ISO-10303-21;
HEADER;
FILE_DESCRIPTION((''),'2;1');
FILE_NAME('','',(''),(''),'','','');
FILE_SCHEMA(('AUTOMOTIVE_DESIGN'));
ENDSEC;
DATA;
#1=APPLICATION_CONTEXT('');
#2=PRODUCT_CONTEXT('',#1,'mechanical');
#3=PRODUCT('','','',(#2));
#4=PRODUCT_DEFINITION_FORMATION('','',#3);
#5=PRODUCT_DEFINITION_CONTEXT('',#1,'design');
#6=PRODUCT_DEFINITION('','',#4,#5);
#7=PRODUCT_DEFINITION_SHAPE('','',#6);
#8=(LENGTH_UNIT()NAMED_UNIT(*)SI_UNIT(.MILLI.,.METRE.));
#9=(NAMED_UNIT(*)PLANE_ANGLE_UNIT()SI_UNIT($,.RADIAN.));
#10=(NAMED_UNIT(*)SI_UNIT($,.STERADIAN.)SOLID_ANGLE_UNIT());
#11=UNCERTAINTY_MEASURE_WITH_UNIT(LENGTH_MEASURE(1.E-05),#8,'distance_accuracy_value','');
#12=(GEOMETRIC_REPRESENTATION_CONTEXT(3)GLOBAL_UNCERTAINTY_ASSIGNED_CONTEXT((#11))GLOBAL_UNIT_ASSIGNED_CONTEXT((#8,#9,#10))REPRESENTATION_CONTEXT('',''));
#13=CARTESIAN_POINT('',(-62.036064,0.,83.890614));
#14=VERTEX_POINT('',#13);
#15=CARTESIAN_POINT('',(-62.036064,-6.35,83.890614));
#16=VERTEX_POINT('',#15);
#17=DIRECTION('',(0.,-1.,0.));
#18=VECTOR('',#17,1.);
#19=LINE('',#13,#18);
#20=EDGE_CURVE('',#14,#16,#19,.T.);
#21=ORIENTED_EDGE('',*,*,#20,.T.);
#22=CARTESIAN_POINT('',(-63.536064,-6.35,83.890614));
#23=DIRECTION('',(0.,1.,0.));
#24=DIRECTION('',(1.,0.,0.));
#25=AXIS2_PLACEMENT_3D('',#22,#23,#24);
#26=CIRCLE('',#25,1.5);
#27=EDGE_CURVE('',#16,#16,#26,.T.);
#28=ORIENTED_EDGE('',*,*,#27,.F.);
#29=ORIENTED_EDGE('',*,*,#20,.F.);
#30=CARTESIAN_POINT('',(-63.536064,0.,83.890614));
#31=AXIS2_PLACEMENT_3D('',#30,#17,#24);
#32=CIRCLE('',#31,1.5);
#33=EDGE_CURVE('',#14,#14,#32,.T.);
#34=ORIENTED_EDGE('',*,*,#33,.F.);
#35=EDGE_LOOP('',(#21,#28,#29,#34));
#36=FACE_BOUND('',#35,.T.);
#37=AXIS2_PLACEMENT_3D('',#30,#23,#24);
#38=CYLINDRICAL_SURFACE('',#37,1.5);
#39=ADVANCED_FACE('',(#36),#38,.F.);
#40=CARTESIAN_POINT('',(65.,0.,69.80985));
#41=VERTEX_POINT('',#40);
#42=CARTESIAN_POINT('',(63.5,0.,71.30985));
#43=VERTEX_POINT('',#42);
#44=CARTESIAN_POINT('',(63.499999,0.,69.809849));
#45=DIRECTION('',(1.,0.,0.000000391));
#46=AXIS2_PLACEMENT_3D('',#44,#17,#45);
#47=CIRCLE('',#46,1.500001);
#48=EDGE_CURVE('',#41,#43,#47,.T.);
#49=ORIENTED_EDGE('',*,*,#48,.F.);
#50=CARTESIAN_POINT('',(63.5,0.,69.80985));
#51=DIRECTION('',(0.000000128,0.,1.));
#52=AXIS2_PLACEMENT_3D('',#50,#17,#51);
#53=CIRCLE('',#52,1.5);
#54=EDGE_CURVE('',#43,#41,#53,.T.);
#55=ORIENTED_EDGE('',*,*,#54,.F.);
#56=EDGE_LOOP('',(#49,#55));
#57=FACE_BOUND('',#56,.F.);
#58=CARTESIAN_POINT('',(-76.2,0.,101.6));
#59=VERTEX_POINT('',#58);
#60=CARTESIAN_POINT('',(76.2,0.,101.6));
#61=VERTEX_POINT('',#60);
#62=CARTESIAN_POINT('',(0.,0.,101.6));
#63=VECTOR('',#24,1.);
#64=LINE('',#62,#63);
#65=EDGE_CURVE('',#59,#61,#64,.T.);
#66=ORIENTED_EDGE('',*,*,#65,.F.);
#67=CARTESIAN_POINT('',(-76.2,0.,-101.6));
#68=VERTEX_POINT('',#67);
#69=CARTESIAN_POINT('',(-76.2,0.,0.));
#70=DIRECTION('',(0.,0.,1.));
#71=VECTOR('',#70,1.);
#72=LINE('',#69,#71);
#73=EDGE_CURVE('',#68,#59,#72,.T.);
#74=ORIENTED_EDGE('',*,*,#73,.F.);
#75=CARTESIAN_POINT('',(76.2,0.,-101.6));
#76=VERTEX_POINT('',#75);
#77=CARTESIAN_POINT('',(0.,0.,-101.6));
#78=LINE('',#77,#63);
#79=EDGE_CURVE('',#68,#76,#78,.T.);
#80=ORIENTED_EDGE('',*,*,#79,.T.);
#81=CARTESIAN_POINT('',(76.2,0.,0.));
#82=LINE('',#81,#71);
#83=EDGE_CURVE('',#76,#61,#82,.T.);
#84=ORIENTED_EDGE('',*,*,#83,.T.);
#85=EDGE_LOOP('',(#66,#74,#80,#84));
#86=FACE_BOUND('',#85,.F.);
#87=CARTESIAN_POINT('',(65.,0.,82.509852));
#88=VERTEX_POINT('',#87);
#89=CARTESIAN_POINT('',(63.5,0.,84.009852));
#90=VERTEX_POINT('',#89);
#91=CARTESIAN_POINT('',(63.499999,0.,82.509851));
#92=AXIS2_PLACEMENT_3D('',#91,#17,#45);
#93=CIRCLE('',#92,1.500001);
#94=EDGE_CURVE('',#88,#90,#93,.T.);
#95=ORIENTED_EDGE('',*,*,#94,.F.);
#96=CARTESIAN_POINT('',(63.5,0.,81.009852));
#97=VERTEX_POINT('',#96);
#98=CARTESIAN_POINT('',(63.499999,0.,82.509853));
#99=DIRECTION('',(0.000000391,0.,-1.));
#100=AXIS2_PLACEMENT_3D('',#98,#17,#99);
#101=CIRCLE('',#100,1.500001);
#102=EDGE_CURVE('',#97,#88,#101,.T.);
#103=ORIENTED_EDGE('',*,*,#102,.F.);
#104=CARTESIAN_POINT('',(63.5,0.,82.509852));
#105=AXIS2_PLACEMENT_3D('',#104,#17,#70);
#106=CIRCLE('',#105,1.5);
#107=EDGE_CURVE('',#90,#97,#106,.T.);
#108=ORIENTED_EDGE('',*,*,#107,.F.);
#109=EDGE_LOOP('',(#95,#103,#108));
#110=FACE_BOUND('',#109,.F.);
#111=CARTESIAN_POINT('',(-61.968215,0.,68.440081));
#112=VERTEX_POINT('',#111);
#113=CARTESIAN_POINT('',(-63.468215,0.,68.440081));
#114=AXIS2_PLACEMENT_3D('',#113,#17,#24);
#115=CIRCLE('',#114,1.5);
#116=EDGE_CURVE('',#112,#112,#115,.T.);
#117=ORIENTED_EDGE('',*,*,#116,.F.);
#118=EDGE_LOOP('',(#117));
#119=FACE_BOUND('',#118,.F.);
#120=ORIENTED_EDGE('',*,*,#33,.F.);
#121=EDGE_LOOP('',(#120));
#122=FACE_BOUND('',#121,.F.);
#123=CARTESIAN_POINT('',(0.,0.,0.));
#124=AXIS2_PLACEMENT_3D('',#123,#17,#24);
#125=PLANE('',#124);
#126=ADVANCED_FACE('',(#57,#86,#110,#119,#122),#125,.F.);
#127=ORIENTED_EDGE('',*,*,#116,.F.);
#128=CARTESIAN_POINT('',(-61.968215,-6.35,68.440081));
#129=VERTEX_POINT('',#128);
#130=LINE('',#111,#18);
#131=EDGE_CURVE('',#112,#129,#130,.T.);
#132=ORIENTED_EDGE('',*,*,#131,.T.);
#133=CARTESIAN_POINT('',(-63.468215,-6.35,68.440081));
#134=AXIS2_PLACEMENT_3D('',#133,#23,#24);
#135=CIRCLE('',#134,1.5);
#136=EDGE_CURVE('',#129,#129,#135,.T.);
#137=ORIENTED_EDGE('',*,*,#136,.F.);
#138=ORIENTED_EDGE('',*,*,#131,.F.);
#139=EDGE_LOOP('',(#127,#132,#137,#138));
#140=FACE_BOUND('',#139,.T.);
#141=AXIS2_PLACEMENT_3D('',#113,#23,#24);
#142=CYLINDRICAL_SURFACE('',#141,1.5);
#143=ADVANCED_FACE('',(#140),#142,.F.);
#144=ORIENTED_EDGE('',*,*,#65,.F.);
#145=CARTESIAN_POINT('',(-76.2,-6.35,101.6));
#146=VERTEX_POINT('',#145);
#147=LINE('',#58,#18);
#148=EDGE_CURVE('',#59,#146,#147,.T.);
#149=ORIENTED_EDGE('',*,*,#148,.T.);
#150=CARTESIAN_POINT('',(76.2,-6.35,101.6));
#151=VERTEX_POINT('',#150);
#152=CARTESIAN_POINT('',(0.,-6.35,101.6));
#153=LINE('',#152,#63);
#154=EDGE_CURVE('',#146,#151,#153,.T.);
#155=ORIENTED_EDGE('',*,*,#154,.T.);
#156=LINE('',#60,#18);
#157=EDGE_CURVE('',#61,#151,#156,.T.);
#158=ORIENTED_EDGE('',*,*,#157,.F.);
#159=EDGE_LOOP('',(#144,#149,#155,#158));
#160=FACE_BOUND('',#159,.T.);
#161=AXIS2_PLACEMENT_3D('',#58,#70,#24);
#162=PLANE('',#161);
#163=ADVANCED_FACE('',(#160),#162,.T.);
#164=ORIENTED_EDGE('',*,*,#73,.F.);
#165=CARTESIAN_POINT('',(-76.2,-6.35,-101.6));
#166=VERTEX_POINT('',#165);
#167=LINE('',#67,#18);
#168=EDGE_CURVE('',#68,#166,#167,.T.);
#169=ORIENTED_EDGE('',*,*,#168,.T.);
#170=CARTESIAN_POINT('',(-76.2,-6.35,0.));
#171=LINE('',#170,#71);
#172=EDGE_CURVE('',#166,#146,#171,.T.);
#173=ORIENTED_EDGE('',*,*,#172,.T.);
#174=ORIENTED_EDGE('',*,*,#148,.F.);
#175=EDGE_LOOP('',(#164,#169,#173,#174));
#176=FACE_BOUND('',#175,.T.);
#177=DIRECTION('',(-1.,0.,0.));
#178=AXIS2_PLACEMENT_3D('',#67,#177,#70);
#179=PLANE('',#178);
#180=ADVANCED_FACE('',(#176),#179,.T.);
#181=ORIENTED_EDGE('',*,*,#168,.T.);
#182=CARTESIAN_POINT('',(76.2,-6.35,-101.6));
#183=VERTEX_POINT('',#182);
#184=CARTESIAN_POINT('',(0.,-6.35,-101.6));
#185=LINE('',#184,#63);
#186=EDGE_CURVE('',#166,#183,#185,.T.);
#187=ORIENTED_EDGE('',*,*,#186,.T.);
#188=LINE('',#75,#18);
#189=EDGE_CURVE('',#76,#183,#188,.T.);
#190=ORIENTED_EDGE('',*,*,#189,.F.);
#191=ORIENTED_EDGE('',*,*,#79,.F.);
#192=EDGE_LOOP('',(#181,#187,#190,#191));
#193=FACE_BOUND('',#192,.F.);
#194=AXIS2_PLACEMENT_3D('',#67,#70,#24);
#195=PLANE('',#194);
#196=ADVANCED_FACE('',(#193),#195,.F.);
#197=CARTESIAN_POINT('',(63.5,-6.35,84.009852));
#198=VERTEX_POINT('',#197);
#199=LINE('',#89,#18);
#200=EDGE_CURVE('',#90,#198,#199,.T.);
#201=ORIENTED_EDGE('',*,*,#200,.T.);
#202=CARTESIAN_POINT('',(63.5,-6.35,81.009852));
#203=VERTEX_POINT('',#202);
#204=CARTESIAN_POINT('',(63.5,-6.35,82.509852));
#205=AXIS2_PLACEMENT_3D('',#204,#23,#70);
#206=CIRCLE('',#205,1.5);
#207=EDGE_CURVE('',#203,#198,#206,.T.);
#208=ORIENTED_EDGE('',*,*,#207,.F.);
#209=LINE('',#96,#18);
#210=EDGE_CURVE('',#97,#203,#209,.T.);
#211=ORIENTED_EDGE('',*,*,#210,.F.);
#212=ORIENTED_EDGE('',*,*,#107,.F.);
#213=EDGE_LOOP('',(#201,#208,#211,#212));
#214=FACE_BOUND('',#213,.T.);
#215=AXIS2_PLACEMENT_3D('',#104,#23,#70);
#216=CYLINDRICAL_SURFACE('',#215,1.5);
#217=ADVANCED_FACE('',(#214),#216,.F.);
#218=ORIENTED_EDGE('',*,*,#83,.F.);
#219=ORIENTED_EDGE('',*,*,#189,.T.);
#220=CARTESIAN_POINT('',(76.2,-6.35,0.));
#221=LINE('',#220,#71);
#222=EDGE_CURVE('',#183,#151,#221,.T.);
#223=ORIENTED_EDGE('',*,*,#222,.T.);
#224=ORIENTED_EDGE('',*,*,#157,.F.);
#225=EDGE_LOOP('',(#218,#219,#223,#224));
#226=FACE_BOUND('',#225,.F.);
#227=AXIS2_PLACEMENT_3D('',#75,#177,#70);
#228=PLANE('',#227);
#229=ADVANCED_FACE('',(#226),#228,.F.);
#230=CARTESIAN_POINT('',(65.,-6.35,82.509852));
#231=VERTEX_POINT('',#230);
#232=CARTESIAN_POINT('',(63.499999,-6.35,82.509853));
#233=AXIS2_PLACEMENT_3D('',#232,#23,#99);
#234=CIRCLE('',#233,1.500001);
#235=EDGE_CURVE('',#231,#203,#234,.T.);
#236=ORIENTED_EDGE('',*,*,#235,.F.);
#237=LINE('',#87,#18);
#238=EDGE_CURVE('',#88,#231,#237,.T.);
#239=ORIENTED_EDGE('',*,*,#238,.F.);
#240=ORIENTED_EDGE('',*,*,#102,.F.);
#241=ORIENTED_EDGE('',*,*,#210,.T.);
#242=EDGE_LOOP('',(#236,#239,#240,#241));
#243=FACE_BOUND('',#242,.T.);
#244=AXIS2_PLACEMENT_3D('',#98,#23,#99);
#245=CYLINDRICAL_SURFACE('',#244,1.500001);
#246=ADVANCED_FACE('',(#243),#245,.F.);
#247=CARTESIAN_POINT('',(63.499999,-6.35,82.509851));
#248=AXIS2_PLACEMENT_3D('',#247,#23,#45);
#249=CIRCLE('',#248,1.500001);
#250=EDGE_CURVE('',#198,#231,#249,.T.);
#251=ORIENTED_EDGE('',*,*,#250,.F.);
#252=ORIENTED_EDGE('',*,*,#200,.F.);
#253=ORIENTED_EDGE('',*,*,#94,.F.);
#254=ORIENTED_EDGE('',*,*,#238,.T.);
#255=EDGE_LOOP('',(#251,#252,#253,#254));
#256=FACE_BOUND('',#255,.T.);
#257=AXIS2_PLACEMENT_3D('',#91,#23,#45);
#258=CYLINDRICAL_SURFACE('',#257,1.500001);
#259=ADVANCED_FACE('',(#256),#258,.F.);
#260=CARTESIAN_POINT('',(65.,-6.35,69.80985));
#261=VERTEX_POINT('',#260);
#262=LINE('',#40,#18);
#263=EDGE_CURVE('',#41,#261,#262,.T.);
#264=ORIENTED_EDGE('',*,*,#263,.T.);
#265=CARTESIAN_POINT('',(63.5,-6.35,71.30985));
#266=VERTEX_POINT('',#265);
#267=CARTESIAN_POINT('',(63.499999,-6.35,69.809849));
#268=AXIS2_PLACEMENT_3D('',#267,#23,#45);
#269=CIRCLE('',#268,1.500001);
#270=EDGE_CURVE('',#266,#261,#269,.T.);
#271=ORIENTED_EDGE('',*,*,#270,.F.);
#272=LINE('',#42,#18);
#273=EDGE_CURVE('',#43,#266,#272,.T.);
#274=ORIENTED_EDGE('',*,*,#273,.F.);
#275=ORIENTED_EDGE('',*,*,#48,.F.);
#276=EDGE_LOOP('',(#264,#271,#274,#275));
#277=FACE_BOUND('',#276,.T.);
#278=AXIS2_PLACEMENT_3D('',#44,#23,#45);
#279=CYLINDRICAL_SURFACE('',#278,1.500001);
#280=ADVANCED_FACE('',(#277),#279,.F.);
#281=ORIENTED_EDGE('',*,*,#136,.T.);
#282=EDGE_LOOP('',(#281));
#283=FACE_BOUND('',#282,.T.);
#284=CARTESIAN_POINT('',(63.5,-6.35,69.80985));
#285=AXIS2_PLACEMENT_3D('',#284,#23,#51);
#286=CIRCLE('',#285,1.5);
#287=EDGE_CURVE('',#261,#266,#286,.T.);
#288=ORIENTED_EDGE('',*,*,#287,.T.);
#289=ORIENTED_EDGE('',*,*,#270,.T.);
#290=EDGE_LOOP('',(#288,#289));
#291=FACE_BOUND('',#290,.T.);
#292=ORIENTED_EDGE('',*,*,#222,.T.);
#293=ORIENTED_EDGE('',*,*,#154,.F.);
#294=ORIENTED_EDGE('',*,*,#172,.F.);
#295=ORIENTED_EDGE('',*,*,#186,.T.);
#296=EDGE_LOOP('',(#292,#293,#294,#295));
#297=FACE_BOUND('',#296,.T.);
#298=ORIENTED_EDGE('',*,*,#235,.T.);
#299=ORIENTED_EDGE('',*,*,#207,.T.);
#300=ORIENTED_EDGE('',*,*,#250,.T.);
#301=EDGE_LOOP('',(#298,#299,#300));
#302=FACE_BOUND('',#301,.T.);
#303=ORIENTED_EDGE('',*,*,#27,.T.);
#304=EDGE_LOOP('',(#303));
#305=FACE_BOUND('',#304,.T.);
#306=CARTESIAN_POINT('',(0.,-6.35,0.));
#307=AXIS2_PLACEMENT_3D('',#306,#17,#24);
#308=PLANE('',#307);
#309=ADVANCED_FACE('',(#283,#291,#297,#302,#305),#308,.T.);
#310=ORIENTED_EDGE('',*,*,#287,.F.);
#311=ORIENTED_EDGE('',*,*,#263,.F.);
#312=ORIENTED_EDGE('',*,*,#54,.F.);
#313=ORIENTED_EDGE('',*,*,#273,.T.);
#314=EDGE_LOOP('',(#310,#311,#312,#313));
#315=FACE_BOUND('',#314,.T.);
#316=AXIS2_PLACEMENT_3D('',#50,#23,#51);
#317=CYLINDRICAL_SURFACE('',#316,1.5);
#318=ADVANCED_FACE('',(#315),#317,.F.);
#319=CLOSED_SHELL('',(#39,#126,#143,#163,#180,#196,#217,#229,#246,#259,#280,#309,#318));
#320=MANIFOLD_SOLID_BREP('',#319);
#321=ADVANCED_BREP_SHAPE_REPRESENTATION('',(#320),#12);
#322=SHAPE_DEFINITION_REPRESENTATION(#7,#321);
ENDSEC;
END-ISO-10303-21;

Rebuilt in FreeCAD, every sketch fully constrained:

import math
import FreeCAD as App
import Part
import Sketcher
from FreeCAD import Vector
Q = App.Units.Quantity

doc = App.newDocument("Part")
body = doc.addObject("PartDesign::Body", "Body")

# Sketch on XZ plane
sketch1 = body.newObject("Sketcher::SketchObject", "Sketch")
sketch1.AttachmentSupport = (doc.getObject("XZ_Plane"), [""])
sketch1.MapMode = "FlatFace"
sketch1.addGeometry([
    Part.LineSegment(Vector(-76, 102, 0), Vector(-76, -102, 0)),
    Part.LineSegment(Vector(-76, -102, 0), Vector(76, -102, 0)),
    Part.LineSegment(Vector(76, -102, 0), Vector(76, 102, 0)),
    Part.LineSegment(Vector(76, 102, 0), Vector(-76, 102, 0)),
], False)
sketch1.addConstraint([
    Sketcher.Constraint("Coincident", 0, 2, 1, 1),
    Sketcher.Constraint("Coincident", 1, 2, 2, 1),
    Sketcher.Constraint("Coincident", 2, 2, 3, 1),
    Sketcher.Constraint("Coincident", 3, 2, 0, 1),
    Sketcher.Constraint("Vertical", 0),
    Sketcher.Constraint("Horizontal", 1),
    Sketcher.Constraint("Vertical", 2),
    Sketcher.Constraint("Horizontal", 3),
    Sketcher.Constraint("Symmetric", 0, 2, 2, 2, -1, 1),
    Sketcher.Constraint("DistanceX", 1, 1, 1, 2, Q("6 in")),
    Sketcher.Constraint("DistanceY", 0, 2, 0, 1, Q("8 in")),
])
pad1 = body.newObject("PartDesign::Pad", "Pad")
pad1.Profile = sketch1
pad1.Length = Q("0.25 in")

# Sketch on XZ plane
sketch2 = body.newObject("Sketcher::SketchObject", "Sketch001")
sketch2.AttachmentSupport = (doc.getObject("XZ_Plane"), [""])
sketch2.MapMode = "FlatFace"
sketch2.addGeometry([
    Part.Circle(Vector(-63.5, 83.9, 0), Vector(0, 0, 1), 1.5),
    Part.Circle(Vector(-63.5, 68.4, 0), Vector(0, 0, 1), 1.5),
], False)
sketch2.addConstraint([
    Sketcher.Constraint("Equal", 0, 1),
    Sketcher.Constraint("Diameter", 0, Q("3 mm")),
    Sketcher.Constraint("DistanceY", -1, 1, 1, 3, Q("68.440081 mm")),
    Sketcher.Constraint("DistanceX", 0, 3, 1, 3, Q("0.067849 mm")),
    Sketcher.Constraint("DistanceX", 0, 3, -1, 1, Q("63.536064 mm")),
    Sketcher.Constraint("DistanceY", -1, 1, 0, 3, Q("83.890614 mm")),
])
pocket1 = body.newObject("PartDesign::Pocket", "Pocket")
pocket1.Profile = sketch2
pocket1.Length = Q("0.567 in")
pocket1.Reversed = True

# Sketch on XZ plane
sketch3 = body.newObject("Sketcher::SketchObject", "Sketch002")
sketch3.AttachmentSupport = (doc.getObject("XZ_Plane"), [""])
sketch3.MapMode = "FlatFace"
sketch3.addGeometry([
    Part.ArcOfCircle(Part.Circle(Vector(63.5, 82.5, 0), Vector(0, 0, 1), 1.5), math.radians(0), math.radians(90)),  # 0
    Part.ArcOfCircle(Part.Circle(Vector(63.5, 82.5, 0), Vector(0, 0, 1), 1.5), math.radians(90), math.radians(270)),  # 1
    Part.ArcOfCircle(Part.Circle(Vector(63.5, 82.5, 0), Vector(0, 0, 1), 1.5), math.radians(-90), math.radians(0)),  # 2
    Part.ArcOfCircle(Part.Circle(Vector(63.5, 69.8, 0), Vector(0, 0, 1), 1.5), math.radians(0), math.radians(90)),  # 3
    Part.ArcOfCircle(Part.Circle(Vector(63.5, 69.8, 0), Vector(0, 0, 1), 1.5), math.radians(90), math.radians(360)),  # 4
], False)
sketch3.addConstraint([
    Sketcher.Constraint("Tangent", 0, 2, 1, 1),
    Sketcher.Constraint("Tangent", 1, 2, 2, 1),
    Sketcher.Constraint("Tangent", 2, 2, 0, 1),
    Sketcher.Constraint("Tangent", 3, 1, 4, 2),
    Sketcher.Constraint("Coincident", 4, 1, 3, 2),
    Sketcher.Constraint("Equal", 2, 3),
    Sketcher.Constraint("Horizontal", 1, 3, 2, 2),
    Sketcher.Constraint("Horizontal", 4, 3, 3, 1),
    Sketcher.Constraint("Vertical", 2, 3, 3, 3),
    Sketcher.Constraint("Vertical", 4, 3, 0, 2),
    Sketcher.Constraint("Vertical", 0, 2, 1, 2),
    Sketcher.Constraint("Vertical", 1, 2, 4, 1),
    Sketcher.Constraint("DistanceX", -1, 1, 0, 3, Q("2.5 in")),
    Sketcher.Constraint("DistanceY", 3, 3, 0, 3, Q("0.5000001 in")),
    Sketcher.Constraint("Radius", 0, Q("1.500001 mm")),
    Sketcher.Constraint("DistanceY", -1, 1, 0, 3, Q("82.509851 mm")),
])
pocket2 = body.newObject("PartDesign::Pocket", "Pocket001")
pocket2.Profile = sketch3
pocket2.Length = Q("1 in")
pocket2.Reversed = True

doc.recompute()
